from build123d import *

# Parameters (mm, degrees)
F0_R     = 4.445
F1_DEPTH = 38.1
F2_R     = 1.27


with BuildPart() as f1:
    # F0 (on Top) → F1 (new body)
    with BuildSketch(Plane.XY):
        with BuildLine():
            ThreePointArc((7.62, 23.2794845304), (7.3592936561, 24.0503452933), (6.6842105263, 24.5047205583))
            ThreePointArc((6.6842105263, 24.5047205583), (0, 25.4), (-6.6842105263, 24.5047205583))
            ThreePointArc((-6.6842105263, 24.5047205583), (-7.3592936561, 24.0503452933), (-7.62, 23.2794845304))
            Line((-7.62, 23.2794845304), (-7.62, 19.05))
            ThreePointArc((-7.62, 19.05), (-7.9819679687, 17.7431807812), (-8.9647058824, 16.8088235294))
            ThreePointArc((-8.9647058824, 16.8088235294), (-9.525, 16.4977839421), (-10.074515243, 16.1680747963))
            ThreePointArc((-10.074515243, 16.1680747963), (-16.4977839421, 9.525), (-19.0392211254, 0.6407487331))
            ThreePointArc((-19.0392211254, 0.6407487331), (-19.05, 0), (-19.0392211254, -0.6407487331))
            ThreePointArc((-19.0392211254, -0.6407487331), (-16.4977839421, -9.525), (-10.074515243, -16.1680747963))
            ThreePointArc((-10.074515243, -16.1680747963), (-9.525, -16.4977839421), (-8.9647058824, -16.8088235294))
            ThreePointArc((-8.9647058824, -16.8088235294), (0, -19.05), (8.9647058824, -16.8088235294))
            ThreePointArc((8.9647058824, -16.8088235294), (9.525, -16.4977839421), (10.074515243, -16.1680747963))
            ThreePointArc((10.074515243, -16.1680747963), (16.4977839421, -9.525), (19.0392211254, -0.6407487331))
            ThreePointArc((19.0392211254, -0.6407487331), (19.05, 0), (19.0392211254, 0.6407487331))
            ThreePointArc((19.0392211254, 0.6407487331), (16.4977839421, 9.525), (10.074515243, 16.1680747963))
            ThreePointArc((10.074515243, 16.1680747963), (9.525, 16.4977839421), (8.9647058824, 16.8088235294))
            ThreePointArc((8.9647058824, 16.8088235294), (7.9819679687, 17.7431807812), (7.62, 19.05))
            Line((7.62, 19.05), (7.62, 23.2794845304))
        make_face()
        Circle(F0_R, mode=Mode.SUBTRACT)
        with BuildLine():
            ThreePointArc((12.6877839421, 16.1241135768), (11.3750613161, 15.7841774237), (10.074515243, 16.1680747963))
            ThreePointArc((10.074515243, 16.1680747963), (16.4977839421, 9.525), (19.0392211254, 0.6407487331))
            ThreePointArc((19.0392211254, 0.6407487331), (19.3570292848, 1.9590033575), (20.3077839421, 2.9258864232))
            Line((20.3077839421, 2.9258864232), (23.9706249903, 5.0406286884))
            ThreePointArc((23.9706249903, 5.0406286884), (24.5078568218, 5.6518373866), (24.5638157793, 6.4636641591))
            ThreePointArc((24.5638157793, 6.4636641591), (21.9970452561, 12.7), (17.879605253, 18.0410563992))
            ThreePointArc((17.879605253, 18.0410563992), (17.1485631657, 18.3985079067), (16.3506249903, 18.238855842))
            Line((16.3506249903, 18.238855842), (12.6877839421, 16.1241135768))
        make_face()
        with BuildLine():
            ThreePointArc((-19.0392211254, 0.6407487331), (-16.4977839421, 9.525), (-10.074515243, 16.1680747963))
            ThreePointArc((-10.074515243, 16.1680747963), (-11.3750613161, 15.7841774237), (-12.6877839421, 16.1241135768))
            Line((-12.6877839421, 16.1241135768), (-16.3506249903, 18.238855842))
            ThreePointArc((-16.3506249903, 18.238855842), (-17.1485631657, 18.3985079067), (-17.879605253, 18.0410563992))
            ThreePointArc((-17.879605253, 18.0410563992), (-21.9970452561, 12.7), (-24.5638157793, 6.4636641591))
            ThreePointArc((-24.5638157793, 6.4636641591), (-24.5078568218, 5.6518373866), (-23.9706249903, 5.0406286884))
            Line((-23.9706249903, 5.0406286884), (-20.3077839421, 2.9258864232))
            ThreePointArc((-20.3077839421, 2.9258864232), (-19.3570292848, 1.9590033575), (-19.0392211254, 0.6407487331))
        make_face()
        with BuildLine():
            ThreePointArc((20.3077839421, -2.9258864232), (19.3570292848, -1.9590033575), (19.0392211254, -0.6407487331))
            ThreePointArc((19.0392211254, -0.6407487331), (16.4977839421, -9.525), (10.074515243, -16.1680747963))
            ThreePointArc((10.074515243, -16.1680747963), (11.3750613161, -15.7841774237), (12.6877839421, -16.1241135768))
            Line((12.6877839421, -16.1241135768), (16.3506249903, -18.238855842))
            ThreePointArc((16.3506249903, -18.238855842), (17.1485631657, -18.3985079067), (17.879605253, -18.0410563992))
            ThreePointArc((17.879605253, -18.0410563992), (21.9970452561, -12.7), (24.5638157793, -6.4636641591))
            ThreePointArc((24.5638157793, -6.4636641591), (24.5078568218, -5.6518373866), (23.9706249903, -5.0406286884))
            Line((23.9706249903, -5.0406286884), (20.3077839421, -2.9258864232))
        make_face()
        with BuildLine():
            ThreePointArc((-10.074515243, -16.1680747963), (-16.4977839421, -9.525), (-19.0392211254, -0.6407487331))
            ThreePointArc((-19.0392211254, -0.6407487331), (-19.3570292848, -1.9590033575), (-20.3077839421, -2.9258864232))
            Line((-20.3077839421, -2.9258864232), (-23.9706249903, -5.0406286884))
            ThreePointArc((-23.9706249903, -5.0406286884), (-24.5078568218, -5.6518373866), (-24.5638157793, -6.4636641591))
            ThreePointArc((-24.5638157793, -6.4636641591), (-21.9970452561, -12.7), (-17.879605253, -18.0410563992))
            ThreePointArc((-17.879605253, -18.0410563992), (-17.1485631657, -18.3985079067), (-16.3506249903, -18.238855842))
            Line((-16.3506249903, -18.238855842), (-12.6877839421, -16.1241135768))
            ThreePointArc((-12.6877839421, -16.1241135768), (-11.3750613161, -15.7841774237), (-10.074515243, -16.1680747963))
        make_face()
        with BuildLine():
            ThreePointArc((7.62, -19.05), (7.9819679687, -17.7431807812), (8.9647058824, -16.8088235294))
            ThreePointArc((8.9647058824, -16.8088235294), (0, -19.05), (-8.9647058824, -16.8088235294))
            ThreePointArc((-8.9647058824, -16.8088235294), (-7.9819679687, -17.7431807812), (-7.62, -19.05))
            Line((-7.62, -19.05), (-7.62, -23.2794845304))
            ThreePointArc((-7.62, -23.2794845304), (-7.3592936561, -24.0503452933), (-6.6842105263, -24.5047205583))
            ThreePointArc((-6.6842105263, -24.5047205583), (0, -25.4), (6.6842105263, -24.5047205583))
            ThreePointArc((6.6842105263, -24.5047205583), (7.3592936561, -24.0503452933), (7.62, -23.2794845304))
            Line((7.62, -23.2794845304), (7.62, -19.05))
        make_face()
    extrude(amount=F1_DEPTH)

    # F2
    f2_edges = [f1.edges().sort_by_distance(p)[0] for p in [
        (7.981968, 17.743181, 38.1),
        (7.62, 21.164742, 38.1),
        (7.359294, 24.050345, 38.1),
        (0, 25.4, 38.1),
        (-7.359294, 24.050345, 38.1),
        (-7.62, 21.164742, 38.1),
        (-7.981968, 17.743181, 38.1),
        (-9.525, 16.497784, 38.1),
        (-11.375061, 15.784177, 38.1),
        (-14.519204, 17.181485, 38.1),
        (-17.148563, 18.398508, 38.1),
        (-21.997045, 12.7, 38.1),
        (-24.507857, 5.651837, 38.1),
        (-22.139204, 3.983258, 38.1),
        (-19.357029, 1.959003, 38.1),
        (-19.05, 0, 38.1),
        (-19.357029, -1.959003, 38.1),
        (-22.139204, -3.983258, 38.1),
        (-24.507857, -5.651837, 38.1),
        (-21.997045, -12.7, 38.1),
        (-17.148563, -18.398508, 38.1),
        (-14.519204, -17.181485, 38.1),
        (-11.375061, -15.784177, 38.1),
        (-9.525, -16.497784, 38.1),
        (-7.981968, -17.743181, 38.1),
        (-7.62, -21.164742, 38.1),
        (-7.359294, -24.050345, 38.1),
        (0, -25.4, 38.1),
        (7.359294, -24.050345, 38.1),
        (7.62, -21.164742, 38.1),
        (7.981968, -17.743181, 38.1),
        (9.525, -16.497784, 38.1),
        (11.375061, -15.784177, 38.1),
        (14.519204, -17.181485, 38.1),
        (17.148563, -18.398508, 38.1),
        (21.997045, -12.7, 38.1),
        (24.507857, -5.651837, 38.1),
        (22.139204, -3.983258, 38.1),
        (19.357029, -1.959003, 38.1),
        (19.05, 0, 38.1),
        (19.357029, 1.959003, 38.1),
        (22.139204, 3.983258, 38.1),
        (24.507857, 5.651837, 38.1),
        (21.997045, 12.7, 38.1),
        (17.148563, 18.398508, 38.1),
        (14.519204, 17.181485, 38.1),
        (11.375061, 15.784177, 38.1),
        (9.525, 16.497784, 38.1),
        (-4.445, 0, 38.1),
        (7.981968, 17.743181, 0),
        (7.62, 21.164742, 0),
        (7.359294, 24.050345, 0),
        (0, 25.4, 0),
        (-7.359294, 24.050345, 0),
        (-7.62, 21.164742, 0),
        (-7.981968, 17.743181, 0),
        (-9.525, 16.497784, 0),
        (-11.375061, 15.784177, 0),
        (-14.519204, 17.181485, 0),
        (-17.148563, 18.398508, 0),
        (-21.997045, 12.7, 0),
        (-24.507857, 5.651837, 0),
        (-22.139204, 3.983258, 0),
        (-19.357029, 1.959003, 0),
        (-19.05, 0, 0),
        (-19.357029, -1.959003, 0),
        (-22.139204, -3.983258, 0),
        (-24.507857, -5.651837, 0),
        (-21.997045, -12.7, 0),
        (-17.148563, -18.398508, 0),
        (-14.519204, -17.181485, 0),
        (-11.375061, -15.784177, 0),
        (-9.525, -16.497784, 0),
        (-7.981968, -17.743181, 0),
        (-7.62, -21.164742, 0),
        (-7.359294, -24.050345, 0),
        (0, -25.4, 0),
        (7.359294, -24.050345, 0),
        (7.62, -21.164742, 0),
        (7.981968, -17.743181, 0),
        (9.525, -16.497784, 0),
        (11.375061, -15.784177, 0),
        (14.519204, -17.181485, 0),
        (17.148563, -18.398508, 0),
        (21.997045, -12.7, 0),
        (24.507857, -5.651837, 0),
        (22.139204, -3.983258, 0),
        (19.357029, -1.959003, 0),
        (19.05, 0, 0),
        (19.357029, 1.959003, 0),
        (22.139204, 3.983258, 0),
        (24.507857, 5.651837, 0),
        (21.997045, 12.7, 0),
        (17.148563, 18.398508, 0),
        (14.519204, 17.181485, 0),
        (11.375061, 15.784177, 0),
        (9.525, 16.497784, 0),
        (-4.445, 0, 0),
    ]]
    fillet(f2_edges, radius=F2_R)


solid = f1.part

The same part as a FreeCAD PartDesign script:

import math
import FreeCAD as App
import Part
import Sketcher
from FreeCAD import Vector
Q = App.Units.Quantity


def edges_at(feature, points):
    """Names of the edges that pass closest to the given points."""
    edges = feature.Shape.Edges
    near = lambda p: min(range(len(edges)), key=lambda i: edges[i].distToShape(Part.Vertex(*p))[0])
    return sorted({f"Edge{near(p) + 1}" for p in points})

doc = App.newDocument("Part")
body = doc.addObject("PartDesign::Body", "Body")

sketch1 = body.newObject("Sketcher::SketchObject", "Sketch")
sketch1.AttachmentSupport = (doc.getObject("XY_Plane"), [""])
sketch1.MapMode = "FlatFace"
sketch1.addGeometry([
    Part.ArcOfCircle(Part.Circle(Vector(6.3, 23.3, 0), Vector(0, 0, 1), 1.3), math.radians(0), math.radians(75)),
    Part.ArcOfCircle(Part.Circle(Vector(0, 0, 0), Vector(0, 0, 1), 25.4), math.radians(75), math.radians(105)),
    Part.ArcOfCircle(Part.Circle(Vector(-6.3, 23.3, 0), Vector(0, 0, 1), 1.3), math.radians(105), math.radians(180)),
    Part.LineSegment(Vector(-7.6, 23.3, 0), Vector(-7.6, 19.1, 0)),
    Part.ArcOfCircle(Part.Circle(Vector(-10.2, 19.1, 0), Vector(0, 0, 1), 2.5), math.radians(-62), math.radians(0)),
    Part.ArcOfCircle(Part.Circle(Vector(0, 0, 0), Vector(0, 0, 1), 19.1), math.radians(118.07), math.radians(121.93)),
    Part.ArcOfCircle(Part.Circle(Vector(-11.4, 18.3, 0), Vector(0, 0, 1), 2.5), math.radians(-120), math.radians(-58)),
    Part.LineSegment(Vector(-12.7, 16.1, 0), Vector(-16.4, 18.2, 0)),
    Part.ArcOfCircle(Part.Circle(Vector(-17, 17.1, 0), Vector(0, 0, 1), 1.3), math.radians(60), math.radians(135)),
    Part.ArcOfCircle(Part.Circle(Vector(0, 0, 0), Vector(0, 0, 1), 25.4), math.radians(135), math.radians(165)),
    Part.ArcOfCircle(Part.Circle(Vector(-23.3, 6.1, 0), Vector(0, 0, 1), 1.3), math.radians(165), math.radians(240)),
    Part.LineSegment(Vector(-24, 5, 0), Vector(-20.3, 2.9, 0)),
    Part.ArcOfCircle(Part.Circle(Vector(-21.6, 0.7, 0), Vector(0, 0, 1), 2.5), math.radians(-2), math.radians(60)),
    Part.ArcOfCircle(Part.Circle(Vector(0, 0, 0), Vector(0, 0, 1), 19.1), math.radians(178.07), math.radians(181.93)),
    Part.ArcOfCircle(Part.Circle(Vector(-21.6, -0.7, 0), Vector(0, 0, 1), 2.5), math.radians(-60), math.radians(2)),
    Part.LineSegment(Vector(-20.3, -2.9, 0), Vector(-24, -5, 0)),
    Part.ArcOfCircle(Part.Circle(Vector(-23.3, -6.1, 0), Vector(0, 0, 1), 1.3), math.radians(120), math.radians(195)),
    Part.ArcOfCircle(Part.Circle(Vector(0, 0, 0), Vector(0, 0, 1), 25.4), math.radians(-165), math.radians(-135)),
    Part.ArcOfCircle(Part.Circle(Vector(-17, -17.1, 0), Vector(0, 0, 1), 1.3), math.radians(-135), math.radians(-60)),
    Part.LineSegment(Vector(-16.4, -18.2, 0), Vector(-12.7, -16.1, 0)),
    Part.ArcOfCircle(Part.Circle(Vector(-11.4, -18.3, 0), Vector(0, 0, 1), 2.5), math.radians(58), math.radians(120)),
    Part.ArcOfCircle(Part.Circle(Vector(0, 0, 0), Vector(0, 0, 1), 19.1), math.radians(-121.93), math.radians(-118.07)),
    Part.ArcOfCircle(Part.Circle(Vector(-10.2, -19.1, 0), Vector(0, 0, 1), 2.5), math.radians(0), math.radians(62)),
    Part.LineSegment(Vector(-7.6, -19.1, 0), Vector(-7.6, -23.3, 0)),
    Part.ArcOfCircle(Part.Circle(Vector(-6.3, -23.3, 0), Vector(0, 0, 1), 1.3), math.radians(180), math.radians(255)),
    Part.ArcOfCircle(Part.Circle(Vector(0, 0, 0), Vector(0, 0, 1), 25.4), math.radians(-105), math.radians(-75)),
    Part.ArcOfCircle(Part.Circle(Vector(6.3, -23.3, 0), Vector(0, 0, 1), 1.3), math.radians(-75), math.radians(0)),
    Part.LineSegment(Vector(7.6, -23.3, 0), Vector(7.6, -19.1, 0)),
    Part.ArcOfCircle(Part.Circle(Vector(10.2, -19.1, 0), Vector(0, 0, 1), 2.5), math.radians(118), math.radians(180)),
    Part.ArcOfCircle(Part.Circle(Vector(0, 0, 0), Vector(0, 0, 1), 19.1), math.radians(-61.93), math.radians(-58.07)),
    Part.ArcOfCircle(Part.Circle(Vector(11.4, -18.3, 0), Vector(0, 0, 1), 2.5), math.radians(60), math.radians(122)),
    Part.LineSegment(Vector(12.7, -16.1, 0), Vector(16.4, -18.2, 0)),
    Part.ArcOfCircle(Part.Circle(Vector(17, -17.1, 0), Vector(0, 0, 1), 1.3), math.radians(-120), math.radians(-45)),
    Part.ArcOfCircle(Part.Circle(Vector(0, 0, 0), Vector(0, 0, 1), 25.4), math.radians(-45), math.radians(-15)),
    Part.ArcOfCircle(Part.Circle(Vector(23.3, -6.1, 0), Vector(0, 0, 1), 1.3), math.radians(-15), math.radians(60)),
    Part.LineSegment(Vector(24, -5, 0), Vector(20.3, -2.9, 0)),
    Part.ArcOfCircle(Part.Circle(Vector(21.6, -0.7, 0), Vector(0, 0, 1), 2.5), math.radians(178), math.radians(240)),
    Part.ArcOfCircle(Part.Circle(Vector(0, 0, 0), Vector(0, 0, 1), 19.1), math.radians(-1.93), math.radians(1.93)),
    Part.ArcOfCircle(Part.Circle(Vector(21.6, 0.7, 0), Vector(0, 0, 1), 2.5), math.radians(120), math.radians(182)),
    Part.LineSegment(Vector(20.3, 2.9, 0), Vector(24, 5, 0)),
    Part.ArcOfCircle(Part.Circle(Vector(23.3, 6.1, 0), Vector(0, 0, 1), 1.3), math.radians(-60), math.radians(15)),
    Part.ArcOfCircle(Part.Circle(Vector(0, 0, 0), Vector(0, 0, 1), 25.4), math.radians(15), math.radians(45)),
    Part.ArcOfCircle(Part.Circle(Vector(17, 17.1, 0), Vector(0, 0, 1), 1.3), math.radians(45), math.radians(120)),
    Part.LineSegment(Vector(16.4, 18.2, 0), Vector(12.7, 16.1, 0)),
    Part.ArcOfCircle(Part.Circle(Vector(11.4, 18.3, 0), Vector(0, 0, 1), 2.5), math.radians(-122), math.radians(-60)),
    Part.ArcOfCircle(Part.Circle(Vector(0, 0, 0), Vector(0, 0, 1), 19.1), math.radians(58.07), math.radians(61.93)),
    Part.ArcOfCircle(Part.Circle(Vector(10.2, 19.1, 0), Vector(0, 0, 1), 2.5), math.radians(180), math.radians(242)),
    Part.LineSegment(Vector(7.6, 19.1, 0), Vector(7.6, 23.3, 0)),
    Part.Circle(Vector(0, 0, 0), Vector(0, 0, 1), 4.4),
], False)
sketch1.addConstraint([
    Sketcher.Constraint("Tangent", 0, 2, 1, 1),
    Sketcher.Constraint("Tangent", 1, 2, 2, 1),
    Sketcher.Constraint("Tangent", 2, 2, 3, 1),
    Sketcher.Constraint("Tangent", 3, 2, 4, 2),
    Sketcher.Constraint("Tangent", 4, 1, 5, 1),
    Sketcher.Constraint("Tangent", 5, 2, 6, 2),
    Sketcher.Constraint("Tangent", 6, 1, 7, 1),
    Sketcher.Constraint("Tangent", 7, 2, 8, 1),
    Sketcher.Constraint("Tangent", 8, 2, 9, 1),
    Sketcher.Constraint("Tangent", 9, 2, 10, 1),
    Sketcher.Constraint("Tangent", 10, 2, 11, 1),
    Sketcher.Constraint("Tangent", 11, 2, 12, 2),
    Sketcher.Constraint("Tangent", 12, 1, 13, 1),
    Sketcher.Constraint("Tangent", 13, 2, 14, 2),
    Sketcher.Constraint("Tangent", 14, 1, 15, 1),
    Sketcher.Constraint("Tangent", 15, 2, 16, 1),
    Sketcher.Constraint("Tangent", 16, 2, 17, 1),
    Sketcher.Constraint("Tangent", 17, 2, 18, 1),
    Sketcher.Constraint("Tangent", 18, 2, 19, 1),
    Sketcher.Constraint("Tangent", 19, 2, 20, 2),
    Sketcher.Constraint("Tangent", 20, 1, 21, 1),
    Sketcher.Constraint("Tangent", 21, 2, 22, 2),
    Sketcher.Constraint("Tangent", 22, 1, 23, 1),
    Sketcher.Constraint("Tangent", 23, 2, 24, 1),
    Sketcher.Constraint("Tangent", 24, 2, 25, 1),
    Sketcher.Constraint("Tangent", 25, 2, 26, 1),
    Sketcher.Constraint("Tangent", 26, 2, 27, 1),
    Sketcher.Constraint("Tangent", 27, 2, 28, 2),
    Sketcher.Constraint("Tangent", 28, 1, 29, 1),
    Sketcher.Constraint("Tangent", 29, 2, 30, 2),
    Sketcher.Constraint("Tangent", 30, 1, 31, 1),
    Sketcher.Constraint("Tangent", 31, 2, 32, 1),
    Sketcher.Constraint("Tangent", 32, 2, 33, 1),
    Sketcher.Constraint("Tangent", 33, 2, 34, 1),
    Sketcher.Constraint("Tangent", 34, 2, 35, 1),
    Sketcher.Constraint("Tangent", 35, 2, 36, 2),
    Sketcher.Constraint("Tangent", 36, 1, 37, 1),
    Sketcher.Constraint("Tangent", 37, 2, 38, 2),
    Sketcher.Constraint("Tangent", 38, 1, 39, 1),
    Sketcher.Constraint("Tangent", 39, 2, 40, 1),
    Sketcher.Constraint("Tangent", 40, 2, 41, 1),
    Sketcher.Constraint("Tangent", 41, 2, 42, 1),
    Sketcher.Constraint("Tangent", 42, 2, 43, 1),
    Sketcher.Constraint("Tangent", 43, 2, 44, 2),
    Sketcher.Constraint("Tangent", 44, 1, 45, 1),
    Sketcher.Constraint("Tangent", 45, 2, 46, 2),
    Sketcher.Constraint("Tangent", 46, 1, 47, 1),
    Sketcher.Constraint("Tangent", 47, 2, 0, 1),
    Sketcher.Constraint("Vertical", 3),
    Sketcher.Constraint("Vertical", 23),
    Sketcher.Constraint("Vertical", 27),
    Sketcher.Constraint("Vertical", 47),
    Sketcher.Constraint("Coincident", 1, 3, -1, 1),
    Sketcher.Constraint("Coincident", 5, 3, -1, 1),
    Sketcher.Constraint("Coincident", 9, 3, -1, 1),
    Sketcher.Constraint("Coincident", 13, 3, -1, 1),
    Sketcher.Constraint("Coincident", 17, 3, -1, 1),
    Sketcher.Constraint("Coincident", 21, 3, -1, 1),
    Sketcher.Constraint("Coincident", 25, 3, -1, 1),
    Sketcher.Constraint("Coincident", 29, 3, -1, 1),
    Sketcher.Constraint("Coincident", 33, 3, -1, 1),
    Sketcher.Constraint("Coincident", 37, 3, -1, 1),
    Sketcher.Constraint("Coincident", 41, 3, -1, 1),
    Sketcher.Constraint("Coincident", 45, 3, -1, 1),
    Sketcher.Constraint("Coincident", 48, 3, -1, 1),
    Sketcher.Constraint("Equal", 0, 2),
    Sketcher.Constraint("Equal", 4, 6),
    Sketcher.Constraint("Equal", 2, 8),
    Sketcher.Constraint("Equal", 1, 9),
    Sketcher.Constraint("Equal", 8, 10),
    Sketcher.Constraint("Equal", 6, 12),
    Sketcher.Constraint("Equal", 5, 13),
    Sketcher.Constraint("Equal", 12, 14),
    Sketcher.Constraint("Equal", 10, 16),
    Sketcher.Constraint("Equal", 9, 17),
    Sketcher.Constraint("Equal", 16, 18),
    Sketcher.Constraint("Equal", 14, 20),
    Sketcher.Constraint("Equal", 13, 21),
    Sketcher.Constraint("Equal", 20, 22),
    Sketcher.Constraint("Equal", 18, 24),
    Sketcher.Constraint("Equal", 17, 25),
    Sketcher.Constraint("Equal", 24, 26),
    Sketcher.Constraint("Equal", 22, 28),
    Sketcher.Constraint("Equal", 21, 29),
    Sketcher.Constraint("Equal", 28, 30),
    Sketcher.Constraint("Equal", 26, 32),
    Sketcher.Constraint("Equal", 25, 33),
    Sketcher.Constraint("Equal", 32, 34),
    Sketcher.Constraint("Equal", 30, 36),
    Sketcher.Constraint("Equal", 29, 37),
    Sketcher.Constraint("Equal", 36, 38),
    Sketcher.Constraint("Equal", 34, 40),
    Sketcher.Constraint("Equal", 33, 41),
    Sketcher.Constraint("Equal", 40, 42),
    Sketcher.Constraint("Equal", 38, 44),
    Sketcher.Constraint("Equal", 37, 45),
    Sketcher.Constraint("Equal", 44, 46),
    Sketcher.Constraint("Symmetric", 6, 1, 30, 1, -1, 1),
    Sketcher.Constraint("Symmetric", 10, 2, 34, 2, -1, 1),
    Sketcher.Constraint("Symmetric", 14, 1, 38, 1, -1, 1),
    Sketcher.Constraint("Symmetric", 18, 2, 42, 2, -1, 1),
    Sketcher.Constraint("Symmetric", 19, 2, 30, 1, -2),
    Sketcher.Constraint("Symmetric", 15, 2, 34, 2, -2),
    Sketcher.Constraint("Parallel", 7, 11),
    Sketcher.Constraint("Horizontal", 0, 3, 2, 3),
    Sketcher.Constraint("Horizontal", 24, 3, 26, 3),
    Sketcher.Constraint("Vertical", 4, 3, 22, 3),
    Sketcher.Constraint("Equal", 7, 11),
    Sketcher.Constraint("Radius", 1, Q("1 in")),
    Sketcher.Constraint("Radius", 4, Q("0.1 in")),
    Sketcher.Constraint("Diameter", 48, Q("0.35 in")),
    Sketcher.Constraint("Radius", 0, Q("0.05 in")),
    Sketcher.Constraint("Radius", 5, Q("0.75 in")),
    Sketcher.Constraint("Angle", 7, Q("150 deg")),
    Sketcher.Constraint("DistanceX", 4, 3, -1, 1, Q("0.4 in")),
    Sketcher.Constraint("DistanceY", -1, 1, 6, 3, Q("18.323818 mm")),
])
pad1 = body.newObject("PartDesign::Pad", "Pad")
pad1.Profile = sketch1
pad1.Length = Q("1.5 in")
doc.recompute()

fillet = body.newObject("PartDesign::Fillet", "Fillet")
fillet.Base = (pad1, edges_at(pad1, [
    (7.982, 17.743, 38.1),
    (7.62, 21.165, 38.1),
    (7.359, 24.05, 38.1),
    (0, 25.4, 38.1),
    (-7.359, 24.05, 38.1),
    (-7.62, 21.165, 38.1),
    (-7.982, 17.743, 38.1),
    (-9.525, 16.498, 38.1),
    (-11.375, 15.784, 38.1),
    (-14.519, 17.181, 38.1),
    (-17.149, 18.399, 38.1),
    (-21.997, 12.7, 38.1),
    (-24.508, 5.652, 38.1),
    (-22.139, 3.983, 38.1),
    (-19.357, 1.959, 38.1),
    (-19.05, 0, 38.1),
    (-19.357, -1.959, 38.1),
    (-22.139, -3.983, 38.1),
    (-24.508, -5.652, 38.1),
    (-21.997, -12.7, 38.1),
    (-17.149, -18.399, 38.1),
    (-14.519, -17.181, 38.1),
    (-11.375, -15.784, 38.1),
    (-9.525, -16.498, 38.1),
    (-7.982, -17.743, 38.1),
    (-7.62, -21.165, 38.1),
    (-7.359, -24.05, 38.1),
    (0, -25.4, 38.1),
    (7.359, -24.05, 38.1),
    (7.62, -21.165, 38.1),
    (7.982, -17.743, 38.1),
    (9.525, -16.498, 38.1),
    (11.375, -15.784, 38.1),
    (14.519, -17.181, 38.1),
    (17.149, -18.399, 38.1),
    (21.997, -12.7, 38.1),
    (24.508, -5.652, 38.1),
    (22.139, -3.983, 38.1),
    (19.357, -1.959, 38.1),
    (19.05, 0, 38.1),
    (19.357, 1.959, 38.1),
    (22.139, 3.983, 38.1),
    (24.508, 5.652, 38.1),
    (21.997, 12.7, 38.1),
    (17.149, 18.399, 38.1),
    (14.519, 17.181, 38.1),
    (11.375, 15.784, 38.1),
    (9.525, 16.498, 38.1),
    (-4.445, 0, 38.1),
    (7.982, 17.743, 0),
    (7.62, 21.165, 0),
    (7.359, 24.05, 0),
    (0, 25.4, 0),
    (-7.359, 24.05, 0),
    (-7.62, 21.165, 0),
    (-7.982, 17.743, 0),
    (-9.525, 16.498, 0),
    (-11.375, 15.784, 0),
    (-14.519, 17.181, 0),
    (-17.149, 18.399, 0),
    (-21.997, 12.7, 0),
    (-24.508, 5.652, 0),
    (-22.139, 3.983, 0),
    (-19.357, 1.959, 0),
    (-19.05, 0, 0),
    (-19.357, -1.959, 0),
    (-22.139, -3.983, 0),
    (-24.508, -5.652, 0),
    (-21.997, -12.7, 0),
    (-17.149, -18.399, 0),
    (-14.519, -17.181, 0),
    (-11.375, -15.784, 0),
    (-9.525, -16.498, 0),
    (-7.982, -17.743, 0),
    (-7.62, -21.165, 0),
    (-7.359, -24.05, 0),
    (0, -25.4, 0),
    (7.359, -24.05, 0),
    (7.62, -21.165, 0),
    (7.982, -17.743, 0),
    (9.525, -16.498, 0),
    (11.375, -15.784, 0),
    (14.519, -17.181, 0),
    (17.149, -18.399, 0),
    (21.997, -12.7, 0),
    (24.508, -5.652, 0),
    (22.139, -3.983, 0),
    (19.357, -1.959, 0),
    (19.05, 0, 0),
    (19.357, 1.959, 0),
    (22.139, 3.983, 0),
    (24.508, 5.652, 0),
    (21.997, 12.7, 0),
    (17.149, 18.399, 0),
    (14.519, 17.181, 0),
    (11.375, 15.784, 0),
    (9.525, 16.498, 0),
    (-4.445, 0, 0),
]))
fillet.Radius = Q("0.05 in")

doc.recompute()
